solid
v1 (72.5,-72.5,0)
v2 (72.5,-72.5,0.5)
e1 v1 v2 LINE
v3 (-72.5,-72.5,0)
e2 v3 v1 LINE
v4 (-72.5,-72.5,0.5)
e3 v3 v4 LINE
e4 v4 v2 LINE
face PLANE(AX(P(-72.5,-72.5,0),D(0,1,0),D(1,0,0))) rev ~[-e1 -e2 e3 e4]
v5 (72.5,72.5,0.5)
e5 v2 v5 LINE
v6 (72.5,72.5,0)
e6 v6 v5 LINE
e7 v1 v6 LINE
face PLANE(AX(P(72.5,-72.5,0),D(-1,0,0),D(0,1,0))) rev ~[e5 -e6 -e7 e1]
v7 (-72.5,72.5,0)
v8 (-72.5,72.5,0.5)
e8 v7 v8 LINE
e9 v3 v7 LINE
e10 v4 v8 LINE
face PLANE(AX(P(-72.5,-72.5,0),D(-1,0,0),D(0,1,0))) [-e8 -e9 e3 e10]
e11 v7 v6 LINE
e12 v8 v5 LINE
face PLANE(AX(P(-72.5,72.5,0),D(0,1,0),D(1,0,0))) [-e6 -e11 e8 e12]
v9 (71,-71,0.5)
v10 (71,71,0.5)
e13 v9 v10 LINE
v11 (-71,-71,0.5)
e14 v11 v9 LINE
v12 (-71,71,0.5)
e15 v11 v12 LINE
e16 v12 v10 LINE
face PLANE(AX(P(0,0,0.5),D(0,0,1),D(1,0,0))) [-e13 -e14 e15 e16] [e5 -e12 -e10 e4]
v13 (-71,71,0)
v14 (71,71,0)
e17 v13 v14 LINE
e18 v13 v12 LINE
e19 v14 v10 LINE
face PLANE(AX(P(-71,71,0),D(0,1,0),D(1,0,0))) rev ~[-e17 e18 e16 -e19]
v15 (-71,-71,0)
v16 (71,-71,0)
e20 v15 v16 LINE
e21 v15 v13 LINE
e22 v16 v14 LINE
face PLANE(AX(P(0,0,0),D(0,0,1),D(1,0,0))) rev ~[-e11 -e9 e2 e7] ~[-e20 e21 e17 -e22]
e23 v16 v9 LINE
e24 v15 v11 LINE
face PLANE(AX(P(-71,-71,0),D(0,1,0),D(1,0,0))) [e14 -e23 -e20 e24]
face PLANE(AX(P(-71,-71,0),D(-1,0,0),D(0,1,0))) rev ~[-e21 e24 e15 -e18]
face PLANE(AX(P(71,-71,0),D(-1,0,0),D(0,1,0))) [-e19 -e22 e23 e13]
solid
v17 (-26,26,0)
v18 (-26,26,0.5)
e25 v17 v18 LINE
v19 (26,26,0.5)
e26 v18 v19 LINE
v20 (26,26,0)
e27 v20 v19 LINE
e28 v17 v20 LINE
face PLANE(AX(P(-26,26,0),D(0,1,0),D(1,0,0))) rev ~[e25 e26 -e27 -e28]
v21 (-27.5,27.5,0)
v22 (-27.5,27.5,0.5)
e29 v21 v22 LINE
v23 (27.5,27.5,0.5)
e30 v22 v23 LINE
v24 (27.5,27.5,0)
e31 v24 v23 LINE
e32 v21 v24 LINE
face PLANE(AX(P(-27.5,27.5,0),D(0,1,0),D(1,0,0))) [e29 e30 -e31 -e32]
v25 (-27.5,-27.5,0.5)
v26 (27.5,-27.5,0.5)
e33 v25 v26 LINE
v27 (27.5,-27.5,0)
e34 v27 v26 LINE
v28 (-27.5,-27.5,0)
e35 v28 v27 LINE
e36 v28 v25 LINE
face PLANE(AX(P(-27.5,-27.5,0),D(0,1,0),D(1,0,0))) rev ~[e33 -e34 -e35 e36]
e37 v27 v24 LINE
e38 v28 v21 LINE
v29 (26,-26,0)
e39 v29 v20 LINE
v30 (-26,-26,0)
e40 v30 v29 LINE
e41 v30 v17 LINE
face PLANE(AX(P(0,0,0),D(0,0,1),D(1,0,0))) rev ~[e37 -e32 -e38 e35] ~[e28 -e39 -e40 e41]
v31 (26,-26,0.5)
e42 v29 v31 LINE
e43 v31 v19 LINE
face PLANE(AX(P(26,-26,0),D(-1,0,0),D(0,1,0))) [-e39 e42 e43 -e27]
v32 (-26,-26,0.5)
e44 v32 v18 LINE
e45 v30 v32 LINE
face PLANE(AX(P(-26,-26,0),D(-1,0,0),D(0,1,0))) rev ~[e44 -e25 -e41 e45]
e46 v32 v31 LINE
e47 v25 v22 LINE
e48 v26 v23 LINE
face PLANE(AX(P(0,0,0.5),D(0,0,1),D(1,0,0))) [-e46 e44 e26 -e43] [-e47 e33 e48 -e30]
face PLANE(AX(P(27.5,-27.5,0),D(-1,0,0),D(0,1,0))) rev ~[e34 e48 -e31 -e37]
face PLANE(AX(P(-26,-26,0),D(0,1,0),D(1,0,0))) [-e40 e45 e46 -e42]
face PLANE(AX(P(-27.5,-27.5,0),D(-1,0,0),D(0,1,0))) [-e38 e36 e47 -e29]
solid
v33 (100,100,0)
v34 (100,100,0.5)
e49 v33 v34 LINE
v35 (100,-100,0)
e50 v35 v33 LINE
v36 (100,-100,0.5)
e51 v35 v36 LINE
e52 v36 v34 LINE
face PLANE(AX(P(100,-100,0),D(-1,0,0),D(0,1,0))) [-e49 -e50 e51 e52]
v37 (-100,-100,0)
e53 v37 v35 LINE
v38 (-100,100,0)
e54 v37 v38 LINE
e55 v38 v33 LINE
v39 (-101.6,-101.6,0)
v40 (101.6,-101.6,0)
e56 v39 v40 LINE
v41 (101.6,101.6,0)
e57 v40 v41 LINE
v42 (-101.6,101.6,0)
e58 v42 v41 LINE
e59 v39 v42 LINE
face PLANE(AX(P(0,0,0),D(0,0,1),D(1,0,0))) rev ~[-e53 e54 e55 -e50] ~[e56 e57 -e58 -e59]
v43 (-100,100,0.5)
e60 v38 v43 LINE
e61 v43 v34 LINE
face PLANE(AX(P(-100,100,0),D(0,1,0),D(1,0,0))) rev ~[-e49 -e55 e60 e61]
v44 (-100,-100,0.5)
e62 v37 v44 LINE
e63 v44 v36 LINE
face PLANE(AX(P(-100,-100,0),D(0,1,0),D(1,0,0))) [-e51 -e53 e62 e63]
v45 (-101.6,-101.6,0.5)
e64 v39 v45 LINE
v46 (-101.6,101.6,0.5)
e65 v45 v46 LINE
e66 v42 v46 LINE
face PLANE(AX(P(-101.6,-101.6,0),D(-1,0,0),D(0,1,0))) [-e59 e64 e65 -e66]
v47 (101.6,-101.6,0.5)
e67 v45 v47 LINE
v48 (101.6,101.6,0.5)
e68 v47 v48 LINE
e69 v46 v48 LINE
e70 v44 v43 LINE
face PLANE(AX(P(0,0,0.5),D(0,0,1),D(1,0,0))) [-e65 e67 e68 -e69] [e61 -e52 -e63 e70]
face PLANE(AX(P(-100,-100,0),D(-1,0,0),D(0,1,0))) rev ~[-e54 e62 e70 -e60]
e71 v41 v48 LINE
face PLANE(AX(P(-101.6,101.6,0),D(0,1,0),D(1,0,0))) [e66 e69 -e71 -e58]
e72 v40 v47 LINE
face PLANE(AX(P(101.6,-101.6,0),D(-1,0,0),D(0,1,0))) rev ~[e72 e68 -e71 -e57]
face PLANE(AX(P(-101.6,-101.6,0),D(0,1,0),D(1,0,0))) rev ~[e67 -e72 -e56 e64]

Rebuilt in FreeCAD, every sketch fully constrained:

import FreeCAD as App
import Part
import Sketcher
from FreeCAD import Vector
Q = App.Units.Quantity


def add_polygon(sketch, points):
    """Adds a closed chain of lines whose ends are joined by coincident constraints."""
    first, n = sketch.GeometryCount, len(points)
    for a, b in zip(points, points[1:] + points[:1]):
        sketch.addGeometry(Part.LineSegment(App.Vector(*a, 0), App.Vector(*b, 0)), False)
    for i in range(n):
        sketch.addConstraint(Sketcher.Constraint("Coincident", first + i, 2, first + (i + 1) % n, 1))

doc = App.newDocument("Part")
body = doc.addObject("PartDesign::Body", "Body")

# Sketch on XY plane
sketch1 = body.newObject("Sketcher::SketchObject", "Sketch")
sketch1.AttachmentSupport = (doc.getObject("XY_Plane"), [""])
sketch1.MapMode = "FlatFace"
add_polygon(sketch1, [(-102, 102), (-102, -102), (102, -102), (102, 102)])  # lines 0-3
add_polygon(sketch1, [(100, -100), (-100, -100), (-100, 100), (100, 100)])  # lines 4-7
sketch1.addConstraint([
    Sketcher.Constraint("Vertical", 0),
    Sketcher.Constraint("Horizontal", 1),
    Sketcher.Constraint("Vertical", 2),
    Sketcher.Constraint("Horizontal", 3),
    Sketcher.Constraint("Horizontal", 4),
    Sketcher.Constraint("Vertical", 5),
    Sketcher.Constraint("Horizontal", 6),
    Sketcher.Constraint("Vertical", 7),
    Sketcher.Constraint("Symmetric", 0, 2, 2, 2, -1, 1),
    Sketcher.Constraint("Symmetric", 4, 2, 6, 2, -1, 1),
    Sketcher.Constraint("Equal", 3, 0),
    Sketcher.Constraint("Equal", 6, 5),
    Sketcher.Constraint("DistanceX", 4, 2, 4, 1, Q("200 mm")),
    Sketcher.Constraint("DistanceX", 1, 1, 1, 2, Q("203.2 mm")),
])
pad1 = body.newObject("PartDesign::Pad", "Pad")
pad1.Profile = sketch1
pad1.Length = 0.5
body2 = doc.addObject("PartDesign::Body", "Body001")

# Sketch on XY plane
sketch2 = body2.newObject("Sketcher::SketchObject", "Sketch001")
sketch2.AttachmentSupport = (doc.getObject("XY_Plane001"), [""])
sketch2.MapMode = "FlatFace"
add_polygon(sketch2, [(-28, 28), (-28, -28), (28, -28), (28, 28)])  # lines 0-3
add_polygon(sketch2, [(26, -26), (-26, -26), (-26, 26), (26, 26)])  # lines 4-7
sketch2.addConstraint([
    Sketcher.Constraint("Vertical", 0),
    Sketcher.Constraint("Horizontal", 1),
    Sketcher.Constraint("Vertical", 2),
    Sketcher.Constraint("Horizontal", 3),
    Sketcher.Constraint("Horizontal", 4),
    Sketcher.Constraint("Vertical", 5),
    Sketcher.Constraint("Horizontal", 6),
    Sketcher.Constraint("Vertical", 7),
    Sketcher.Constraint("Symmetric", 0, 2, 2, 2, -1, 1),
    Sketcher.Constraint("Symmetric", 4, 2, 6, 2, -1, 1),
    Sketcher.Constraint("Equal", 3, 0),
    Sketcher.Constraint("Equal", 6, 5),
    Sketcher.Constraint("DistanceX", 1, 1, 1, 2, Q("55 mm")),
    Sketcher.Constraint("DistanceX", 4, 2, 4, 1, Q("52 mm")),
])
pad2 = body2.newObject("PartDesign::Pad", "Pad001")
pad2.Profile = sketch2
pad2.Length = 0.5
body3 = doc.addObject("PartDesign::Body", "Body002")

# Sketch on XY plane
sketch3 = body3.newObject("Sketcher::SketchObject", "Sketch002")
sketch3.AttachmentSupport = (doc.getObject("XY_Plane002"), [""])
sketch3.MapMode = "FlatFace"
add_polygon(sketch3, [(-72, 72), (-72, -72), (72, -72), (72, 72)])  # lines 0-3
add_polygon(sketch3, [(71, -71), (-71, -71), (-71, 71), (71, 71)])  # lines 4-7
sketch3.addConstraint([
    Sketcher.Constraint("Vertical", 0),
    Sketcher.Constraint("Horizontal", 1),
    Sketcher.Constraint("Vertical", 2),
    Sketcher.Constraint("Horizontal", 3),
    Sketcher.Constraint("Horizontal", 4),
    Sketcher.Constraint("Vertical", 5),
    Sketcher.Constraint("Horizontal", 6),
    Sketcher.Constraint("Vertical", 7),
    Sketcher.Constraint("Symmetric", 0, 2, 2, 2, -1, 1),
    Sketcher.Constraint("Symmetric", 4, 2, 6, 2, -1, 1),
    Sketcher.Constraint("Equal", 3, 0),
    Sketcher.Constraint("Equal", 6, 5),
    Sketcher.Constraint("DistanceX", 1, 1, 1, 2, Q("145 mm")),
    Sketcher.Constraint("DistanceX", 4, 2, 4, 1, Q("142 mm")),
])
pad3 = body3.newObject("PartDesign::Pad", "Pad002")
pad3.Profile = sketch3
pad3.Length = 0.5

doc.recompute()
